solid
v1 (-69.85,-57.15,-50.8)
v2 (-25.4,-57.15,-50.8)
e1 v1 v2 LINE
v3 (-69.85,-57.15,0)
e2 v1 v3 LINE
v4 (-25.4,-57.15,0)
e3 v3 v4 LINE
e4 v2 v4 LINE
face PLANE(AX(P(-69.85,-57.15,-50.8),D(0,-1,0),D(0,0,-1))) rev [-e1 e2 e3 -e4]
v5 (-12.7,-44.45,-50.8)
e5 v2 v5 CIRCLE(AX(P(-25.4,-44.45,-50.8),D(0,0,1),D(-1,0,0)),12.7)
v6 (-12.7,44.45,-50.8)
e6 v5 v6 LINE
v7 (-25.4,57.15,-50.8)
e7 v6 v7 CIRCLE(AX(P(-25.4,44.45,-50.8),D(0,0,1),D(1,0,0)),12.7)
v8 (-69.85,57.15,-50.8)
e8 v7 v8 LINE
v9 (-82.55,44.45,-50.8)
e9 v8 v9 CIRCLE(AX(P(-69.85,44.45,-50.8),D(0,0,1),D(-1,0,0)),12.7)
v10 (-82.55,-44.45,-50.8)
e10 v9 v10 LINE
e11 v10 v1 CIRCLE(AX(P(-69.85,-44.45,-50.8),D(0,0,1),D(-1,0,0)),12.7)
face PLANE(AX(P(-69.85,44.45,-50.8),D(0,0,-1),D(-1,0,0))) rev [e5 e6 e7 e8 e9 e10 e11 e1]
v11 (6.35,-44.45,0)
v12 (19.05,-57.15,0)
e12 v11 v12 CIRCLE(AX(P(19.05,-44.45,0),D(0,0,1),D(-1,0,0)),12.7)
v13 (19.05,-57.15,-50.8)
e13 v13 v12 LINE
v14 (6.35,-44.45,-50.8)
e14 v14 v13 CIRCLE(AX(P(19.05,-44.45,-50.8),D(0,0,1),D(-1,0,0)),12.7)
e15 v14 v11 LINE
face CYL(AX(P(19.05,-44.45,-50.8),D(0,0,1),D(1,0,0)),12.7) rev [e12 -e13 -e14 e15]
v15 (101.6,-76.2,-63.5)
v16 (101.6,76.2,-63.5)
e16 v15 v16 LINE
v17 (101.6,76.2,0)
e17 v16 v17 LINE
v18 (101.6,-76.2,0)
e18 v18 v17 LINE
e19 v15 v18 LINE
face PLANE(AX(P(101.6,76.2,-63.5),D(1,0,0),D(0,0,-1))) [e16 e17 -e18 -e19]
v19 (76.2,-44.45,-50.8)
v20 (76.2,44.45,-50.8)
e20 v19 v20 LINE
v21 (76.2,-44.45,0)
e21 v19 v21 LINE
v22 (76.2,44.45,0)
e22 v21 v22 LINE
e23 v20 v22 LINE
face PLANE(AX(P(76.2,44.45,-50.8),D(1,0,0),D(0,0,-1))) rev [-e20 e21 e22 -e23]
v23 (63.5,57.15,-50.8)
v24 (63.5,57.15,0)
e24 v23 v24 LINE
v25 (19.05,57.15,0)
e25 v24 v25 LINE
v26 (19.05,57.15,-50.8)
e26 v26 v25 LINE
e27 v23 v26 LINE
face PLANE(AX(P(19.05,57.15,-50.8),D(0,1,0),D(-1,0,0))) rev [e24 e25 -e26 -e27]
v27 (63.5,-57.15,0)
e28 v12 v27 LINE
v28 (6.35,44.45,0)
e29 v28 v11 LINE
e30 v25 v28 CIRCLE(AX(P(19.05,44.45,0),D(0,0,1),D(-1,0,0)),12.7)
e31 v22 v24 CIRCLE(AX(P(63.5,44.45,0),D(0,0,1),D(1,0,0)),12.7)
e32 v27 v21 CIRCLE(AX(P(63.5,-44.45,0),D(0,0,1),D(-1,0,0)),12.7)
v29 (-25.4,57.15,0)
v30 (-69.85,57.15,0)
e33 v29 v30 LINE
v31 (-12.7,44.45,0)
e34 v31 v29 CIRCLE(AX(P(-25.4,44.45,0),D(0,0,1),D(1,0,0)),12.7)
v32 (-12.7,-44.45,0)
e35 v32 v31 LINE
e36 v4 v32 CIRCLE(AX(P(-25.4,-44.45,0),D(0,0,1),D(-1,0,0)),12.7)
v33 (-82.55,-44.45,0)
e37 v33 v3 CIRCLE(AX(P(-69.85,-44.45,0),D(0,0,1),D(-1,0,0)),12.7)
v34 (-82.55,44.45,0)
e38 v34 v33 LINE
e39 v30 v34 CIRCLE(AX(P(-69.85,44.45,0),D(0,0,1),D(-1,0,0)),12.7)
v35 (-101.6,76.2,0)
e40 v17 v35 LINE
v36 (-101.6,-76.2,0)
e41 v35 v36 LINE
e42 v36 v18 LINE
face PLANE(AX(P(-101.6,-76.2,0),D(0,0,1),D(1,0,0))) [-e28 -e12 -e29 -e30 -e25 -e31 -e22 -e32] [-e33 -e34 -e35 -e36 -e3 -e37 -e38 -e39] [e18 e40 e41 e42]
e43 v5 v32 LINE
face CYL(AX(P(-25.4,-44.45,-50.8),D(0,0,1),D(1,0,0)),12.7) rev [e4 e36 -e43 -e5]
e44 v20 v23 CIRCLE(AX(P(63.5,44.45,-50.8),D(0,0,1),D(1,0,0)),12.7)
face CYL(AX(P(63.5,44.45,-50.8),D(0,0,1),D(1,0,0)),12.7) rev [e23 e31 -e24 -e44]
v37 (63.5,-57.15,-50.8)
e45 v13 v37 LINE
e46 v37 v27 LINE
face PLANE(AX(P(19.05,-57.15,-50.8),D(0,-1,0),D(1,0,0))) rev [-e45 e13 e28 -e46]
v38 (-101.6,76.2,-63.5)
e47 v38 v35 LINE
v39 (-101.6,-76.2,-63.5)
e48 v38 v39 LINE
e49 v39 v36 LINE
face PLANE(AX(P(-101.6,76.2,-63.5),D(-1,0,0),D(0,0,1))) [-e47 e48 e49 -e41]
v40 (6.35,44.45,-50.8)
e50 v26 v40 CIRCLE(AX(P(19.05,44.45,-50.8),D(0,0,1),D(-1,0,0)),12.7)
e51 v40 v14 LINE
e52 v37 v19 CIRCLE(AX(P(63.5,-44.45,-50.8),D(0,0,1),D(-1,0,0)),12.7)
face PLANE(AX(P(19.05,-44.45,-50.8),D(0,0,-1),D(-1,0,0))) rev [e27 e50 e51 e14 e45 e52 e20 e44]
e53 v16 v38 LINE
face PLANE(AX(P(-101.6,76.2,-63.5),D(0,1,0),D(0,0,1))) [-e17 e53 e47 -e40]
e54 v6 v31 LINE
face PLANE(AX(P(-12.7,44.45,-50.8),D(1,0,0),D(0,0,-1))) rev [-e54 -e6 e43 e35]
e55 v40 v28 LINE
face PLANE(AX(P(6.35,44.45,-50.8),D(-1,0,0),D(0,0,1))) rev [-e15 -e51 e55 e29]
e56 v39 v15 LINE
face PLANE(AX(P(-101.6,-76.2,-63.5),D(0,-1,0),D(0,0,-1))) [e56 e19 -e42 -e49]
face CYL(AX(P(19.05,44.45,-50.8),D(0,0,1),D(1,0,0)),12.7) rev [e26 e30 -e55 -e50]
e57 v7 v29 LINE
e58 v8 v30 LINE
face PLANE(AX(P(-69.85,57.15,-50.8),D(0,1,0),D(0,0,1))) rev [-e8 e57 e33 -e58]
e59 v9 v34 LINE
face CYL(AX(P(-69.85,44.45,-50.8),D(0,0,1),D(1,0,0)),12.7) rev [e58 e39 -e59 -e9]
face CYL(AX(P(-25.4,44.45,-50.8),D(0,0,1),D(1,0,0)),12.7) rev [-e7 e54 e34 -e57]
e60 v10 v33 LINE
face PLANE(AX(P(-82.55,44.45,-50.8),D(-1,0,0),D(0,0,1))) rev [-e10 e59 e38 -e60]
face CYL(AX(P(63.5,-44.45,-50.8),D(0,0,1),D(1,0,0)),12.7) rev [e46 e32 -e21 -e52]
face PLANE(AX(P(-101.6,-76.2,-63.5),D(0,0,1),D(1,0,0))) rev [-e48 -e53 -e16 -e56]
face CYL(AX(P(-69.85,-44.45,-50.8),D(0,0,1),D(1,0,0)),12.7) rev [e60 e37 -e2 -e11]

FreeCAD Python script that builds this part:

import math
import FreeCAD as App
import Part
import Sketcher
Q = App.Units.Quantity

doc = App.newDocument("Part")
body = doc.addObject("PartDesign::Body", "Body")

# Sketch on XY plane
sketch1 = body.newObject("Sketcher::SketchObject", "Sketch")
sketch1.AttachmentSupport = (doc.getObject("XY_Plane"), [""])
sketch1.MapMode = "FlatFace"
sketch1.addGeometry([
    Part.LineSegment(App.Vector(-101.6, 76.2, 0), App.Vector(-101.6, -76.2, 0)),
    Part.LineSegment(App.Vector(-101.6, -76.2, 0), App.Vector(101.6, -76.2, 0)),
    Part.LineSegment(App.Vector(101.6, -76.2, 0), App.Vector(101.6, 76.2, 0)),
    Part.LineSegment(App.Vector(101.6, 76.2, 0), App.Vector(-101.6, 76.2, 0)),
], False)
sketch1.addConstraint([
    Sketcher.Constraint("Coincident", 0, 2, 1, 1),
    Sketcher.Constraint("Coincident", 1, 2, 2, 1),
    Sketcher.Constraint("Coincident", 2, 2, 3, 1),
    Sketcher.Constraint("Coincident", 3, 2, 0, 1),
    Sketcher.Constraint("Vertical", 0),
    Sketcher.Constraint("Horizontal", 1),
    Sketcher.Constraint("Vertical", 2),
    Sketcher.Constraint("Horizontal", 3),
    Sketcher.Constraint("Symmetric", 0, 2, 2, 2, -1, 1),
    Sketcher.Constraint("DistanceX", 1, 1, 1, 2, Q("8 in")),
    Sketcher.Constraint("DistanceY", 0, 2, 0, 1, Q("6 in")),
])
pad1 = body.newObject("PartDesign::Pad", "Pad")
pad1.Profile = sketch1
pad1.Length = Q("2.5 in")
pad1.Reversed = True

# Sketch on XY plane
sketch2 = body.newObject("Sketcher::SketchObject", "Sketch001")
sketch2.AttachmentSupport = (doc.getObject("XY_Plane"), [""])
sketch2.MapMode = "FlatFace"
sketch2.addGeometry([
    Part.LineSegment(App.Vector(-25.4, 57.15, 0), App.Vector(-69.85, 57.15, 0)),  # 0
    Part.ArcOfCircle(Part.Circle(App.Vector(-69.85, 44.45, 0), App.Vector(0, 0, 1), 12.7), math.radians(90), math.radians(180)),  # 1
    Part.LineSegment(App.Vector(-82.55, 44.45, 0), App.Vector(-82.55, -44.45, 0)),  # 2
    Part.ArcOfCircle(Part.Circle(App.Vector(-69.85, -44.45, 0), App.Vector(0, 0, 1), 12.7), math.radians(180), math.radians(270)),  # 3
    Part.LineSegment(App.Vector(-69.85, -57.15, 0), App.Vector(-25.4, -57.15, 0)),  # 4
    Part.ArcOfCircle(Part.Circle(App.Vector(-25.4, -44.45, 0), App.Vector(0, 0, 1), 12.7), math.radians(-90), math.radians(0)),  # 5
    Part.LineSegment(App.Vector(-12.7, -44.45, 0), App.Vector(-12.7, 44.45, 0)),  # 6
    Part.ArcOfCircle(Part.Circle(App.Vector(-25.4, 44.45, 0), App.Vector(0, 0, 1), 12.7), math.radians(0), math.radians(90)),  # 7
    Part.LineSegment(App.Vector(63.5, 57.15, 0), App.Vector(19.05, 57.15, 0)),  # 8
    Part.ArcOfCircle(Part.Circle(App.Vector(19.05, 44.45, 0), App.Vector(0, 0, 1), 12.7), math.radians(90), math.radians(180)),  # 9
    Part.LineSegment(App.Vector(6.35, 44.45, 0), App.Vector(6.35, -44.45, 0)),  # 10
    Part.ArcOfCircle(Part.Circle(App.Vector(19.05, -44.45, 0), App.Vector(0, 0, 1), 12.7), math.radians(180), math.radians(270)),  # 11
    Part.LineSegment(App.Vector(19.05, -57.15, 0), App.Vector(63.5, -57.15, 0)),  # 12
    Part.ArcOfCircle(Part.Circle(App.Vector(63.5, -44.45, 0), App.Vector(0, 0, 1), 12.7), math.radians(-90), math.radians(0)),  # 13
    Part.LineSegment(App.Vector(76.2, -44.45, 0), App.Vector(76.2, 44.45, 0)),  # 14
    Part.ArcOfCircle(Part.Circle(App.Vector(63.5, 44.45, 0), App.Vector(0, 0, 1), 12.7), math.radians(0), math.radians(90)),  # 15
], False)
sketch2.addConstraint([
    Sketcher.Constraint("Tangent", 0, 2, 1, 1),
    Sketcher.Constraint("Tangent", 1, 2, 2, 1),
    Sketcher.Constraint("Tangent", 2, 2, 3, 1),
    Sketcher.Constraint("Tangent", 3, 2, 4, 1),
    Sketcher.Constraint("Tangent", 4, 2, 5, 1),
    Sketcher.Constraint("Tangent", 5, 2, 6, 1),
    Sketcher.Constraint("Tangent", 6, 2, 7, 1),
    Sketcher.Constraint("Tangent", 7, 2, 0, 1),
    Sketcher.Constraint("Tangent", 8, 2, 9, 1),
    Sketcher.Constraint("Tangent", 9, 2, 10, 1),
    Sketcher.Constraint("Tangent", 10, 2, 11, 1),
    Sketcher.Constraint("Tangent", 11, 2, 12, 1),
    Sketcher.Constraint("Tangent", 12, 2, 13, 1),
    Sketcher.Constraint("Tangent", 13, 2, 14, 1),
    Sketcher.Constraint("Tangent", 14, 2, 15, 1),
    Sketcher.Constraint("Tangent", 15, 2, 8, 1),
    Sketcher.Constraint("Horizontal", 0),
    Sketcher.Constraint("Vertical", 2),
    Sketcher.Constraint("Horizontal", 4),
    Sketcher.Constraint("Vertical", 6),
    Sketcher.Constraint("Horizontal", 8),
    Sketcher.Constraint("Vertical", 10),
    Sketcher.Constraint("Horizontal", 12),
    Sketcher.Constraint("Vertical", 14),
    Sketcher.Constraint("Equal", 1, 3),
    Sketcher.Constraint("Equal", 3, 5),
    Sketcher.Constraint("Equal", 5, 7),
    Sketcher.Constraint("Equal", 7, 9),
    Sketcher.Constraint("Equal", 9, 11),
    Sketcher.Constraint("Equal", 11, 13),
    Sketcher.Constraint("Equal", 13, 15),
    Sketcher.Constraint("Horizontal", 7, 3, 9, 3),
    Sketcher.Constraint("Horizontal", 5, 3, 11, 3),
    Sketcher.Constraint("Equal", 4, 8),
    Sketcher.Constraint("Radius", 1, Q("0.5 in")),
    Sketcher.Constraint("DistanceY", 2, 2, 2, 1, Q("3.5 in")),
    Sketcher.Constraint("DistanceX", 5, 3, -1, 1, Q("1 in")),
    Sketcher.Constraint("DistanceX", -1, 1, 13, 2, Q("3 in")),
    Sketcher.Constraint("DistanceX", 0, 2, 0, 1, Q("1.75 in")),
    Sketcher.Constraint("DistanceY", -1, 1, 1, 3, Q("1.75 in")),
])
pocket1 = body.newObject("PartDesign::Pocket", "Pocket")
pocket1.Profile = sketch2
pocket1.Length = Q("2 in")

doc.recompute()
